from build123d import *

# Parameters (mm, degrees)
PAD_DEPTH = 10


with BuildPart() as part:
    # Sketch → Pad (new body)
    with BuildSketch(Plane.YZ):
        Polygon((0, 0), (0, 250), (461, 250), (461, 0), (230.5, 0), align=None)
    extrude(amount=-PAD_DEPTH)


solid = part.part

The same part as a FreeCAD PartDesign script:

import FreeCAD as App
import Part
import Sketcher
from FreeCAD import Vector
Q = App.Units.Quantity

doc = App.newDocument("Part")
body = doc.addObject("PartDesign::Body", "Body")

# Sketch on YZ plane
sketch1 = body.newObject("Sketcher::SketchObject", "Sketch")
sketch1.AttachmentSupport = (doc.getObject("YZ_Plane"), [""])
sketch1.MapMode = "FlatFace"
sketch1.addGeometry([
    Part.LineSegment(Vector(0, 250, 0), Vector(0, 0, 0)),
    Part.LineSegment(Vector(0, 0, 0), Vector(461, 0, 0)),
    Part.LineSegment(Vector(461, 0, 0), Vector(461, 250, 0)),
    Part.LineSegment(Vector(461, 250, 0), Vector(0, 250, 0)),
], False)
sketch1.addConstraint([
    Sketcher.Constraint("Coincident", 0, 2, 1, 1),
    Sketcher.Constraint("Coincident", 1, 2, 2, 1),
    Sketcher.Constraint("Coincident", 2, 2, 3, 1),
    Sketcher.Constraint("Coincident", 3, 2, 0, 1),
    Sketcher.Constraint("Vertical", 0),
    Sketcher.Constraint("Horizontal", 1),
    Sketcher.Constraint("Vertical", 2),
    Sketcher.Constraint("Horizontal", 3),
    Sketcher.Constraint("Coincident", 0, 2, -1, 1),
    Sketcher.Constraint("DistanceX", 1, 1, 1, 2, Q("461 mm")),
    Sketcher.Constraint("DistanceY", 0, 2, 0, 1, Q("250 mm")),
])
pad1 = body.newObject("PartDesign::Pad", "Pad")
pad1.Profile = sketch1
pad1.Length = 10
pad1.Reversed = True

doc.recompute()
